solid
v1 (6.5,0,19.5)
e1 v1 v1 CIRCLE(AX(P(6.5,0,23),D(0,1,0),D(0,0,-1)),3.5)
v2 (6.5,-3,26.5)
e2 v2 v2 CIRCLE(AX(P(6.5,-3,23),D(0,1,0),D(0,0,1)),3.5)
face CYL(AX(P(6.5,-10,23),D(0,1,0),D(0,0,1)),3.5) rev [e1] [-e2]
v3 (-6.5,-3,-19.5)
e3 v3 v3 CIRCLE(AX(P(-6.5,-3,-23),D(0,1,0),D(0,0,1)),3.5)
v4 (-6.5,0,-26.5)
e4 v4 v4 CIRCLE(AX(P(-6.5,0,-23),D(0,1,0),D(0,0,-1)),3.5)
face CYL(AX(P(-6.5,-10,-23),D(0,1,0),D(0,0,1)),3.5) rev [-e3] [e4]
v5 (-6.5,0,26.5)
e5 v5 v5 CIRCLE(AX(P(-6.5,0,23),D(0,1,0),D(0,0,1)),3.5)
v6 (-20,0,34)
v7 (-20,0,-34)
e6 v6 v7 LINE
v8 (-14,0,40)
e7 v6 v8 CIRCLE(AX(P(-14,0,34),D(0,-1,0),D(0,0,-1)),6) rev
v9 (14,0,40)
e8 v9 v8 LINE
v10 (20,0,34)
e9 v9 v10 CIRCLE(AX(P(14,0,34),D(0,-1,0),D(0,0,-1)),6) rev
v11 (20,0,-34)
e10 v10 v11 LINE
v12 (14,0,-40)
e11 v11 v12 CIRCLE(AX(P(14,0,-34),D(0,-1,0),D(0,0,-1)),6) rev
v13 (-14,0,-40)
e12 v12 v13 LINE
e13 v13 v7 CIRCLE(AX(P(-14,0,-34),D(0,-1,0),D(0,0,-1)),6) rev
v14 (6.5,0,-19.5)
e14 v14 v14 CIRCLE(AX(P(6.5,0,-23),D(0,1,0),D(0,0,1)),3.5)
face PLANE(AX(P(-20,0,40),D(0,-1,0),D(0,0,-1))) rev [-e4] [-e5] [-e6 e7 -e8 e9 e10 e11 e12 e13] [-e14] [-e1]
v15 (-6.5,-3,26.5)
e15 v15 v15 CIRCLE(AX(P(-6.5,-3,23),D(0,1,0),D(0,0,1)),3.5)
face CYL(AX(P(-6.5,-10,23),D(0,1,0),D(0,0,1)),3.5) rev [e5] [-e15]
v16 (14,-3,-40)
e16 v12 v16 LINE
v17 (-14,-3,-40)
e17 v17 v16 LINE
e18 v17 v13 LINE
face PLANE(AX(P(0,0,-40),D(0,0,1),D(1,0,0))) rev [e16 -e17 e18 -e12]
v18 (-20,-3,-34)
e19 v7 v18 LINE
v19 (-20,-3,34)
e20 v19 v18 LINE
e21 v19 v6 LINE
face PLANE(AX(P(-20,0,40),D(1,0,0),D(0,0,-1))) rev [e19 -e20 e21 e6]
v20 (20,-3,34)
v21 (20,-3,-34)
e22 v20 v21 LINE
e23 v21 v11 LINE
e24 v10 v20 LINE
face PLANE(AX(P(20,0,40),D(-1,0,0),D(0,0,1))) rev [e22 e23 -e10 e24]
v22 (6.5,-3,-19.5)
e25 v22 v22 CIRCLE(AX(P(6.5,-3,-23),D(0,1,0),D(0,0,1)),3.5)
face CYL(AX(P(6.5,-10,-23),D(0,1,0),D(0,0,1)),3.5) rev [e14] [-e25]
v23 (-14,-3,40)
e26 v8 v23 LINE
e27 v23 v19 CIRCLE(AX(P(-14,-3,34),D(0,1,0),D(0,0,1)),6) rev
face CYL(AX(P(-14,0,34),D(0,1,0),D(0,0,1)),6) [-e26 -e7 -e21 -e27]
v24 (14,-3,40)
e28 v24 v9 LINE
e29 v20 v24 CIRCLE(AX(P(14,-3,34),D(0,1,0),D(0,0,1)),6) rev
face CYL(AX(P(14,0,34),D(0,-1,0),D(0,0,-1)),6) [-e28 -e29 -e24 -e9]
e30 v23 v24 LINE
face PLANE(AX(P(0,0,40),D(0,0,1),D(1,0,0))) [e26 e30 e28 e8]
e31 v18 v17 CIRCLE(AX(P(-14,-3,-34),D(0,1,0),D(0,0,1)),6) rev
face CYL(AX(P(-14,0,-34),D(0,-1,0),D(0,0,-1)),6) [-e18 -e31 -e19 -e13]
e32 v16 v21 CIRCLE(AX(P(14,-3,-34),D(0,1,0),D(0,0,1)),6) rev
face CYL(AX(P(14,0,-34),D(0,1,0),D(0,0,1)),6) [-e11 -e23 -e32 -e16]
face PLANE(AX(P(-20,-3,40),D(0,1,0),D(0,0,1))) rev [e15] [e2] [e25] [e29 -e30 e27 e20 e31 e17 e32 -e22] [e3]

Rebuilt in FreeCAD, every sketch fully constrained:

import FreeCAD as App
import Part
import Sketcher


def edges_at(feature, points):
    """Names of the edges that pass closest to the given points."""
    edges = feature.Shape.Edges
    near = lambda p: min(range(len(edges)), key=lambda i: edges[i].distToShape(Part.Vertex(*p))[0])
    return sorted({f"Edge{near(p) + 1}" for p in points})


def add_polygon(sketch, points):
    """Adds a closed chain of lines whose ends are joined by coincident constraints."""
    first, n = sketch.GeometryCount, len(points)
    for a, b in zip(points, points[1:] + points[:1]):
        sketch.addGeometry(Part.LineSegment(App.Vector(*a, 0), App.Vector(*b, 0)), False)
    for i in range(n):
        sketch.addConstraint(Sketcher.Constraint("Coincident", first + i, 2, first + (i + 1) % n, 1))

doc = App.newDocument("Part")
body = doc.addObject("PartDesign::Body", "Body")

sketch1 = body.newObject("Sketcher::SketchObject", "Sketch")
sketch1.AttachmentSupport = (doc.getObject("XY_Plane"), [""])
sketch1.MapMode = "FlatFace"
add_polygon(sketch1, [(-20, 0), (-20, -3), (20, -3), (20, 0)])
sketch1.addConstraint([
    Sketcher.Constraint("Vertical", 0),
    Sketcher.Constraint("Horizontal", 1),
    Sketcher.Constraint("Vertical", 2),
    Sketcher.Constraint("Horizontal", 3),
    Sketcher.Constraint("Symmetric", 2, 2, 3, 2, -1, 1),
    Sketcher.Constraint("DistanceX", 1, 1, 1, 2, 40.0),
    Sketcher.Constraint("DistanceY", 0, 2, 0, 1, 3.0),
])
pad1 = body.newObject("PartDesign::Pad", "Pad")
pad1.Profile = sketch1
pad1.Length = 80
pad1.Midplane = True
doc.recompute()

fillet = body.newObject("PartDesign::Fillet", "Fillet")
fillet.Base = (pad1, edges_at(pad1, [
    (20, -1.5, 40),
    (-20, -1.5, 40),
    (20, -1.5, -40),
    (-20, -1.5, -40),
]))
fillet.Radius = 6

sketch2 = body.newObject("Sketcher::SketchObject", "Sketch001")
sketch2.AttachmentSupport = (doc.getObject("XZ_Plane"), [""])
sketch2.MapMode = "FlatFace"
sketch2.addGeometry([
    Part.Circle(App.Vector(6.5, -23, 0), App.Vector(0, 0, 1), 3.5),
    Part.Circle(App.Vector(-6.5, -23, 0), App.Vector(0, 0, 1), 3.5),
    Part.Circle(App.Vector(6.5, 23, 0), App.Vector(0, 0, 1), 3.5),
    Part.Circle(App.Vector(-6.5, 23, 0), App.Vector(0, 0, 1), 3.5),
], False)
sketch2.addConstraint([
    Sketcher.Constraint("Equal", 0, 1),
    Sketcher.Constraint("Equal", 1, 2),
    Sketcher.Constraint("Equal", 2, 3),
    Sketcher.Constraint("Symmetric", 1, 3, 2, 3, -1, 1),
    Sketcher.Constraint("Symmetric", 0, 3, 3, 3, -1, 1),
    Sketcher.Constraint("Symmetric", 0, 3, 1, 3, -2),
    Sketcher.Constraint("Diameter", 0, 7.0),
    Sketcher.Constraint("DistanceY", 0, 3, -1, 1, 23.0),
    Sketcher.Constraint("DistanceX", 1, 3, 0, 3, 13.0),
])
pocket1 = body.newObject("PartDesign::Pocket", "Pocket")
pocket1.Profile = sketch2
pocket1.Length = 10
pocket1.Reversed = True

doc.recompute()
